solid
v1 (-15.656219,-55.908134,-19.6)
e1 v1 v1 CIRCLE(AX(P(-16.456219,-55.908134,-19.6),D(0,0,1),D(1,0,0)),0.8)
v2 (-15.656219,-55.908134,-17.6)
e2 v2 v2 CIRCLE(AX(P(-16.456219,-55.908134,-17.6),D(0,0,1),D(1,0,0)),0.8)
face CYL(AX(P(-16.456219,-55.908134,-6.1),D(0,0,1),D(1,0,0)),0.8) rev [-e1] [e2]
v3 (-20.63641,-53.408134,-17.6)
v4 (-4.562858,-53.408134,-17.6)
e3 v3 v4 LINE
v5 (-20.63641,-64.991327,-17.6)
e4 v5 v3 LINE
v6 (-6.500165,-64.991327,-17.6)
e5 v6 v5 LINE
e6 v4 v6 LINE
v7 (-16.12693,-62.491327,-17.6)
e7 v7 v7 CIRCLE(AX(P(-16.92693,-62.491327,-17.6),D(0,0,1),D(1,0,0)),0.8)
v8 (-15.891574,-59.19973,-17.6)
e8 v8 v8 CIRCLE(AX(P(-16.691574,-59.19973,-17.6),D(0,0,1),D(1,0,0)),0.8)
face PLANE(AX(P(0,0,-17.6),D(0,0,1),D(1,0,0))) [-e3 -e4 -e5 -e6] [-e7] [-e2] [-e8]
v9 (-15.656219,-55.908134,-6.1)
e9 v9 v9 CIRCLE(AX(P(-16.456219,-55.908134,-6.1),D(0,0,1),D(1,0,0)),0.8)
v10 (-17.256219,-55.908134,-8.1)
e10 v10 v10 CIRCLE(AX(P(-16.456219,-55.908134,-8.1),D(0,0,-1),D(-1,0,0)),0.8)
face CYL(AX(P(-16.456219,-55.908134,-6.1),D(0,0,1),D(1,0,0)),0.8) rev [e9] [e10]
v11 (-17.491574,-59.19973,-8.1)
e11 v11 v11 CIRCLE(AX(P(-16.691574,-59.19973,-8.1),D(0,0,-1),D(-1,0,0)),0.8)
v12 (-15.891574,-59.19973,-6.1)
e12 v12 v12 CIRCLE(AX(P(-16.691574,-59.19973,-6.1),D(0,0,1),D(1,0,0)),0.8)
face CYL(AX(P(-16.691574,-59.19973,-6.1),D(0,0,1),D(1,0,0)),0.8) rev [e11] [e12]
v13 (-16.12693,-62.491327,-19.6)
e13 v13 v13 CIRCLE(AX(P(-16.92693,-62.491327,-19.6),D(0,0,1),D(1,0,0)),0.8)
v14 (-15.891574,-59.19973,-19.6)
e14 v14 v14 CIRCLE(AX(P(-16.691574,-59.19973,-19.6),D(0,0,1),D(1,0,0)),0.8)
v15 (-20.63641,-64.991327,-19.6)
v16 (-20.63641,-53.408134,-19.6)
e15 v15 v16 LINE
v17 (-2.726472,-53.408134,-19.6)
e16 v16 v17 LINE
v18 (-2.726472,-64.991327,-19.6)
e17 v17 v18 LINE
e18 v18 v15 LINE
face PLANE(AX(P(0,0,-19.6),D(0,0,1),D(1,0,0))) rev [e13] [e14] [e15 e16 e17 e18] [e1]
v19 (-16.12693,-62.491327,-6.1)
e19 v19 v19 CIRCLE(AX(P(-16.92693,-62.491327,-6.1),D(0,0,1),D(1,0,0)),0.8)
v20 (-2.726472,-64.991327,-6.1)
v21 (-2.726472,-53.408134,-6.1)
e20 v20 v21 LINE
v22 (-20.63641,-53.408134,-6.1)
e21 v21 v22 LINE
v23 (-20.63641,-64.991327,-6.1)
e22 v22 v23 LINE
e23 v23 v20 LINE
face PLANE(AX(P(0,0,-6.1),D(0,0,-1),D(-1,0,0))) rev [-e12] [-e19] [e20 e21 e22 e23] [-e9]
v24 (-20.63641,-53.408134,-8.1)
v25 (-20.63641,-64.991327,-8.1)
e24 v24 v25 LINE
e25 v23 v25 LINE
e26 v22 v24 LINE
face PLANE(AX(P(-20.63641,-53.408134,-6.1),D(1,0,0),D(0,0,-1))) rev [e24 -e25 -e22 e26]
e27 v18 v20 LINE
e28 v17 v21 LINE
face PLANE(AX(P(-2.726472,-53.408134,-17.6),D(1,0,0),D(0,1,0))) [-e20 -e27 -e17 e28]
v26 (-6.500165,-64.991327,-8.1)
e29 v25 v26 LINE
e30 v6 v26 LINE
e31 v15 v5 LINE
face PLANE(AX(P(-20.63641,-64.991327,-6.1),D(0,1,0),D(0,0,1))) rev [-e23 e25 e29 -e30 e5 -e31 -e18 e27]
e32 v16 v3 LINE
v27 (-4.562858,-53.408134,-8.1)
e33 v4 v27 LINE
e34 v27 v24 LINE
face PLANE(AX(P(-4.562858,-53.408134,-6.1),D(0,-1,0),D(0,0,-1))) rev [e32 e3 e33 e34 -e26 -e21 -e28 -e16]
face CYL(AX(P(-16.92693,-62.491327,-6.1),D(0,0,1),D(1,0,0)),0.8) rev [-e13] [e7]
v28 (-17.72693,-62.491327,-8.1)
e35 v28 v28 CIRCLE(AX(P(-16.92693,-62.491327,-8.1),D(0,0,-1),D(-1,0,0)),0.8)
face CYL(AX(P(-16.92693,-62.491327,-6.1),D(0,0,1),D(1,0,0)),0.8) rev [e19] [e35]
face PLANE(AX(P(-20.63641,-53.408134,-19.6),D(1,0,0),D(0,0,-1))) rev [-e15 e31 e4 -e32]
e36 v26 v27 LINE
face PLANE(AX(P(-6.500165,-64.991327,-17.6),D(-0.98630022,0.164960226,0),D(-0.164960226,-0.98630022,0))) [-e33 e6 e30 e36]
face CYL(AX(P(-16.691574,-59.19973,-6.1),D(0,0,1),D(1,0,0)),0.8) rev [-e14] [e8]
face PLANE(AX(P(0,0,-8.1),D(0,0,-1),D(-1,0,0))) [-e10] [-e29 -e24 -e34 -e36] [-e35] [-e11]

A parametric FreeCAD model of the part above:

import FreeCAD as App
import Part
import Sketcher
Q = App.Units.Quantity


def add_polygon(sketch, points):
    """Adds a closed chain of lines whose ends are joined by coincident constraints."""
    first, n = sketch.GeometryCount, len(points)
    for a, b in zip(points, points[1:] + points[:1]):
        sketch.addGeometry(Part.LineSegment(App.Vector(*a, 0), App.Vector(*b, 0)), False)
    for i in range(n):
        sketch.addConstraint(Sketcher.Constraint("Coincident", first + i, 2, first + (i + 1) % n, 1))

doc = App.newDocument("Part")
body = doc.addObject("PartDesign::Body", "Body")

sketch1 = doc.addObject("Sketcher::SketchObject", "Sketch")
body.addObject(sketch1)
sketch1.AttachmentSupport = (doc.XY_Plane, [""])
sketch1.MapMode = "FlatFace"
sketch1.AttachmentOffset = App.Placement(App.Vector(0, 0, -8.1), App.Rotation())
add_polygon(sketch1, [(-7, -65), (-5, -53), (-21, -53), (-21, -65)])
sketch1.addConstraint([
    Sketcher.Constraint("Horizontal", 1),
    Sketcher.Constraint("Vertical", 2),
    Sketcher.Constraint("Horizontal", 3),
    Sketcher.Constraint("DistanceX", 1, 2, 1, 1, Q("16.073552 mm")),
    Sketcher.Constraint("DistanceX", 3, 1, 3, 2, Q("14.136245 mm")),
    Sketcher.Constraint("DistanceY", 2, 2, 2, 1, Q("11.583193 mm")),
    Sketcher.Constraint("DistanceX", 0, 2, -1, 1, Q("4.562858 mm")),
    Sketcher.Constraint("DistanceY", 0, 2, -1, 1, Q("53.408134 mm")),
])
pad1 = doc.addObject("PartDesign::Pad", "Pad")
body.addObject(pad1)
pad1.Profile = sketch1
pad1.Length = 2

sketch2 = doc.addObject("Sketcher::SketchObject", "Sketch001")
body.addObject(sketch2)
sketch2.AttachmentSupport = (doc.XY_Plane, [""])
sketch2.MapMode = "FlatFace"
sketch2.AttachmentOffset = App.Placement(App.Vector(0, 0, -6.1), App.Rotation())
add_polygon(sketch2, [(-2.7, -53.4), (-4.6, -53.4), (-6.5, -65), (-2.7, -65)])
sketch2.addConstraint([
    Sketcher.Constraint("Horizontal", 0),
    Sketcher.Constraint("Horizontal", 2),
    Sketcher.Constraint("Vertical", 3),
    Sketcher.Constraint("DistanceX", 0, 2, 0, 1, Q("1.836387 mm")),
    Sketcher.Constraint("DistanceX", 2, 1, 2, 2, Q("3.773693 mm")),
    Sketcher.Constraint("DistanceY", 3, 1, 3, 2, Q("11.583193 mm")),
    Sketcher.Constraint("DistanceX", 0, 2, -1, 1, Q("4.562858 mm")),
    Sketcher.Constraint("DistanceY", 0, 2, -1, 1, Q("53.408134 mm")),
])
pad2 = doc.addObject("PartDesign::Pad", "Pad001")
body.addObject(pad2)
pad2.Profile = sketch2
pad2.Length = 11.5
pad2.Reversed = True

sketch3 = doc.addObject("Sketcher::SketchObject", "Sketch002")
body.addObject(sketch3)
sketch3.AttachmentSupport = (doc.XY_Plane, [""])
sketch3.MapMode = "FlatFace"
sketch3.AttachmentOffset = App.Placement(App.Vector(0, 0, -17.6), App.Rotation())
add_polygon(sketch3, [(-3, -53), (-3, -65), (-21, -65), (-21, -53)])
sketch3.addConstraint([
    Sketcher.Constraint("Vertical", 0),
    Sketcher.Constraint("Horizontal", 1),
    Sketcher.Constraint("Vertical", 2),
    Sketcher.Constraint("Horizontal", 3),
    Sketcher.Constraint("DistanceX", 1, 2, 1, 1, Q("17.909938 mm")),
    Sketcher.Constraint("DistanceY", 0, 2, 0, 1, Q("11.583193 mm")),
    Sketcher.Constraint("DistanceX", 0, 2, -1, 1, Q("2.726472 mm")),
    Sketcher.Constraint("DistanceY", 0, 2, -1, 1, Q("64.991327 mm")),
])
pad3 = doc.addObject("PartDesign::Pad", "Pad002")
body.addObject(pad3)
pad3.Profile = sketch3
pad3.Length = 2
pad3.Reversed = True

sketch4 = doc.addObject("Sketcher::SketchObject", "Sketch003")
body.addObject(sketch4)
sketch4.AttachmentSupport = (doc.XY_Plane, [""])
sketch4.MapMode = "FlatFace"
sketch4.AttachmentOffset = App.Placement(App.Vector(0, 0, -6.1), App.Rotation())
sketch4.addGeometry([
    Part.Circle(App.Vector(-16.9, -62.5, 0), App.Vector(0, 0, 1), 0.8),
    Part.Circle(App.Vector(-16.7, -59.2, 0), App.Vector(0, 0, 1), 0.8),
    Part.Circle(App.Vector(-16.5, -55.9, 0), App.Vector(0, 0, 1), 0.8),
], False)
sketch4.addConstraint([
    Sketcher.Constraint("Equal", 0, 1),
    Sketcher.Constraint("Equal", 1, 2),
    Sketcher.Constraint("Diameter", 0, Q("1.6 mm")),
    Sketcher.Constraint("DistanceX", 0, 3, -1, 1, Q("16.92693 mm")),
    Sketcher.Constraint("DistanceY", 1, 3, -1, 1, Q("59.19973 mm")),
    Sketcher.Constraint("DistanceX", 2, 3, -1, 1, Q("16.456219 mm")),
    Sketcher.Constraint("DistanceY", 0, 3, -1, 1, Q("62.491327 mm")),
    Sketcher.Constraint("DistanceX", 1, 3, -1, 1, Q("16.691574 mm")),
    Sketcher.Constraint("DistanceY", 2, 3, -1, 1, Q("55.908134 mm")),
])
doc.recompute()
hole = doc.addObject("PartDesign::Hole", "Hole")
body.addObject(hole)
hole.Profile = sketch4
hole.ThreadType = "None"
hole.Diameter = 1.6
hole.DepthType = "Dimension"
hole.Depth = 17
hole.DrillPoint = "Angled"
hole.DrillPointAngle = 118

doc.recompute()
